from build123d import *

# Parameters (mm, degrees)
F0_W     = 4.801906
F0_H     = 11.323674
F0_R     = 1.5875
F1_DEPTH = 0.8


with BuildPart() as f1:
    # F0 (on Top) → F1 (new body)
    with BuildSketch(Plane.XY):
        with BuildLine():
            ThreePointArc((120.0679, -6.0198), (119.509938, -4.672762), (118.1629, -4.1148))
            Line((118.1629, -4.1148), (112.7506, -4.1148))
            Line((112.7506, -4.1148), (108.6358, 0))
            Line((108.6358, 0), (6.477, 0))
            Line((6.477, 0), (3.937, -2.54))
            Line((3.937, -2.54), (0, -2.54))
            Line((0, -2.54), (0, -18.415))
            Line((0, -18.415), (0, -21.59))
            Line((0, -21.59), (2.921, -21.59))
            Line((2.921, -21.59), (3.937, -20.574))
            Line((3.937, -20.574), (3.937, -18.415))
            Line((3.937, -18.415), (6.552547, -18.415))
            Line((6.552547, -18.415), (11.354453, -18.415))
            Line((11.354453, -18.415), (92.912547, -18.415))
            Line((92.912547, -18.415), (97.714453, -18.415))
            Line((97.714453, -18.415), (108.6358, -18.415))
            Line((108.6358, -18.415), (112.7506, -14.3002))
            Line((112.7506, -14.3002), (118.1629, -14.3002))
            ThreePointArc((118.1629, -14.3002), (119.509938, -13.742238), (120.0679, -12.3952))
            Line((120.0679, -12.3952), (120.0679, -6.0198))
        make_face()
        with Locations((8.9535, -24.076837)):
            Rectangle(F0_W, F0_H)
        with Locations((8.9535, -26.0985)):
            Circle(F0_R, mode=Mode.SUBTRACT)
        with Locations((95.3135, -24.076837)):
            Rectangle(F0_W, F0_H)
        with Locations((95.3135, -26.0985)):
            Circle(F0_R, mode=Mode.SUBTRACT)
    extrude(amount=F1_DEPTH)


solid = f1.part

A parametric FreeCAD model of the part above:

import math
import FreeCAD as App
import Part
import Sketcher

V = App.Vector
Q = App.Units.Quantity

doc = App.newDocument("Part")
body = doc.addObject("PartDesign::Body", "Body")

sketch1 = body.newObject("Sketcher::SketchObject", "Sketch")
sketch1.AttachmentSupport = (doc.getObject("XY_Plane"), [""])
sketch1.MapMode = "FlatFace"
sketch1.addGeometry([
    Part.ArcOfCircle(Part.Circle(V(118.162899, -6.019801, 0), V(0, 0, 1), 1.905001), math.radians(0.000043), math.radians(89.999957)),
    Part.LineSegment(V(118.1629, -4.1148, 0), V(112.7506, -4.1148, 0)),
    Part.LineSegment(V(112.7506, -4.1148, 0), V(108.6358, 0, 0)),
    Part.LineSegment(V(108.6358, 0, 0), V(6.477, 0, 0)),
    Part.LineSegment(V(6.477, 0, 0), V(3.937, -2.54, 0)),
    Part.LineSegment(V(3.937, -2.54, 0), V(0, -2.54, 0)),
    Part.LineSegment(V(0, -2.54, 0), V(0, -21.59, 0)),
    Part.LineSegment(V(0, -21.59, 0), V(2.921, -21.59, 0)),
    Part.LineSegment(V(2.921, -21.59, 0), V(3.937, -20.574, 0)),
    Part.LineSegment(V(3.937, -20.574, 0), V(3.937, -18.415, 0)),
    Part.LineSegment(V(3.937, -18.415, 0), V(6.552547, -18.415, 0)),
    Part.LineSegment(V(6.552547, -18.415, 0), V(6.552547, -29.738674, 0)),
    Part.LineSegment(V(6.552547, -29.738674, 0), V(11.354453, -29.738674, 0)),
    Part.LineSegment(V(11.354453, -29.738674, 0), V(11.354453, -18.415, 0)),
    Part.LineSegment(V(11.354453, -18.415, 0), V(92.912547, -18.415, 0)),
    Part.LineSegment(V(92.912547, -18.415, 0), V(92.912547, -29.738674, 0)),
    Part.LineSegment(V(92.912547, -29.738674, 0), V(97.714453, -29.738674, 0)),
    Part.LineSegment(V(97.714453, -29.738674, 0), V(97.714453, -18.415, 0)),
    Part.LineSegment(V(97.714453, -18.415, 0), V(108.6358, -18.415, 0)),
    Part.LineSegment(V(108.6358, -18.415, 0), V(112.7506, -14.3002, 0)),
    Part.LineSegment(V(112.7506, -14.3002, 0), V(118.1629, -14.3002, 0)),
    Part.ArcOfCircle(Part.Circle(V(118.162899, -12.395199, 0), V(0, 0, 1), 1.905001), math.radians(-89.999957), math.radians(-0.000043)),
    Part.LineSegment(V(120.0679, -12.3952, 0), V(120.0679, -6.0198, 0)),
    Part.Circle(V(8.9535, -26.0985, 0), V(0, 0, 1), 1.5875),
    Part.Circle(V(95.3135, -26.0985, 0), V(0, 0, 1), 1.5875),
], False)
sketch1.addConstraint([
    Sketcher.Constraint("Tangent", 0, 2, 1, 1),
    Sketcher.Constraint("Coincident", 1, 2, 2, 1),
    Sketcher.Constraint("Coincident", 2, 2, 3, 1),
    Sketcher.Constraint("Coincident", 3, 2, 4, 1),
    Sketcher.Constraint("Coincident", 4, 2, 5, 1),
    Sketcher.Constraint("Coincident", 5, 2, 6, 1),
    Sketcher.Constraint("Coincident", 6, 2, 7, 1),
    Sketcher.Constraint("Coincident", 7, 2, 8, 1),
    Sketcher.Constraint("Coincident", 8, 2, 9, 1),
    Sketcher.Constraint("Coincident", 9, 2, 10, 1),
    Sketcher.Constraint("Coincident", 10, 2, 11, 1),
    Sketcher.Constraint("Coincident", 11, 2, 12, 1),
    Sketcher.Constraint("Coincident", 12, 2, 13, 1),
    Sketcher.Constraint("Coincident", 13, 2, 14, 1),
    Sketcher.Constraint("Coincident", 14, 2, 15, 1),
    Sketcher.Constraint("Coincident", 15, 2, 16, 1),
    Sketcher.Constraint("Coincident", 16, 2, 17, 1),
    Sketcher.Constraint("Coincident", 17, 2, 18, 1),
    Sketcher.Constraint("Coincident", 18, 2, 19, 1),
    Sketcher.Constraint("Coincident", 19, 2, 20, 1),
    Sketcher.Constraint("Tangent", 20, 2, 21, 1),
    Sketcher.Constraint("Tangent", 21, 2, 22, 1),
    Sketcher.Constraint("Tangent", 22, 2, 0, 1),
    Sketcher.Constraint("Horizontal", 1),
    Sketcher.Constraint("Horizontal", 3),
    Sketcher.Constraint("Horizontal", 5),
    Sketcher.Constraint("Vertical", 6),
    Sketcher.Constraint("Horizontal", 7),
    Sketcher.Constraint("Vertical", 9),
    Sketcher.Constraint("Horizontal", 10),
    Sketcher.Constraint("Vertical", 11),
    Sketcher.Constraint("Horizontal", 12),
    Sketcher.Constraint("Vertical", 13),
    Sketcher.Constraint("Horizontal", 14),
    Sketcher.Constraint("Vertical", 15),
    Sketcher.Constraint("Horizontal", 16),
    Sketcher.Constraint("Vertical", 17),
    Sketcher.Constraint("Horizontal", 18),
    Sketcher.Constraint("Horizontal", 20),
    Sketcher.Constraint("Vertical", 22),
    Sketcher.Constraint("Equal", 0, 21),
    Sketcher.Constraint("Equal", 23, 24),
    Sketcher.Constraint("PointOnObject", 2, 2, -1),
    Sketcher.Constraint("PointOnObject", 5, 2, -2),
    Sketcher.Constraint("Perpendicular", 2, 4),
    Sketcher.Constraint("Parallel", 4, 8),
    Sketcher.Constraint("Parallel", 8, 19),
    Sketcher.Constraint("Horizontal", 23, 3, 24, 3),
    Sketcher.Constraint("Horizontal", 10, 2, 13, 2),
    Sketcher.Constraint("Horizontal", 12, 2, 15, 2),
    Sketcher.Constraint("Horizontal", 14, 2, 17, 2),
    Sketcher.Constraint("Vertical", 4, 2, 8, 2),
    Sketcher.Constraint("Vertical", 2, 2, 18, 2),
    Sketcher.Constraint("Vertical", 1, 2, 19, 2),
    Sketcher.Constraint("Equal", 12, 16),
    Sketcher.Constraint("Equal", 2, 19),
    Sketcher.Constraint("Diameter", 23, Q("0.125 in")),
    Sketcher.Constraint("Radius", 0, Q("0.0750001 in")),
    Sketcher.Constraint("DistanceY", 6, 2, 6, 1, Q("0.75 in")),
    Sketcher.Constraint("DistanceY", 4, 2, -1, 1, Q("0.1 in")),
    Sketcher.Constraint("DistanceX", 23, 3, 24, 3, Q("3.4 in")),
    Sketcher.Constraint("DistanceX", 3, 2, 3, 1, Q("4.022 in")),
    Sketcher.Constraint("DistanceX", 5, 2, 5, 1, Q("0.155 in")),
    Sketcher.Constraint("DistanceX", 7, 1, 7, 2, Q("0.115 in")),
    Sketcher.Constraint("DistanceY", 9, 1, 9, 2, Q("0.085 in")),
    Sketcher.Constraint("DistanceY", 22, 1, 22, 2, Q("0.251 in")),
    Sketcher.Constraint("DistanceX", 1, 2, 1, 1, Q("5.4123 mm")),
    Sketcher.Constraint("DistanceX", -1, 1, 23, 3, Q("0.3525 in")),
    Sketcher.Constraint("DistanceY", 23, 3, -1, 1, Q("1.0275 in")),
    Sketcher.Constraint("DistanceX", 10, 1, 10, 2, Q("2.615547 mm")),
    Sketcher.Constraint("DistanceX", 12, 1, 12, 2, Q("4.801906 mm")),
    Sketcher.Constraint("DistanceX", 14, 1, 14, 2, Q("81.558094 mm")),
    Sketcher.Constraint("DistanceY", 11, 2, 11, 1, Q("11.323674 mm")),
])
pad1 = body.newObject("PartDesign::Pad", "Pad")
pad1.Profile = sketch1
pad1.Length = 0.8

doc.recompute()
